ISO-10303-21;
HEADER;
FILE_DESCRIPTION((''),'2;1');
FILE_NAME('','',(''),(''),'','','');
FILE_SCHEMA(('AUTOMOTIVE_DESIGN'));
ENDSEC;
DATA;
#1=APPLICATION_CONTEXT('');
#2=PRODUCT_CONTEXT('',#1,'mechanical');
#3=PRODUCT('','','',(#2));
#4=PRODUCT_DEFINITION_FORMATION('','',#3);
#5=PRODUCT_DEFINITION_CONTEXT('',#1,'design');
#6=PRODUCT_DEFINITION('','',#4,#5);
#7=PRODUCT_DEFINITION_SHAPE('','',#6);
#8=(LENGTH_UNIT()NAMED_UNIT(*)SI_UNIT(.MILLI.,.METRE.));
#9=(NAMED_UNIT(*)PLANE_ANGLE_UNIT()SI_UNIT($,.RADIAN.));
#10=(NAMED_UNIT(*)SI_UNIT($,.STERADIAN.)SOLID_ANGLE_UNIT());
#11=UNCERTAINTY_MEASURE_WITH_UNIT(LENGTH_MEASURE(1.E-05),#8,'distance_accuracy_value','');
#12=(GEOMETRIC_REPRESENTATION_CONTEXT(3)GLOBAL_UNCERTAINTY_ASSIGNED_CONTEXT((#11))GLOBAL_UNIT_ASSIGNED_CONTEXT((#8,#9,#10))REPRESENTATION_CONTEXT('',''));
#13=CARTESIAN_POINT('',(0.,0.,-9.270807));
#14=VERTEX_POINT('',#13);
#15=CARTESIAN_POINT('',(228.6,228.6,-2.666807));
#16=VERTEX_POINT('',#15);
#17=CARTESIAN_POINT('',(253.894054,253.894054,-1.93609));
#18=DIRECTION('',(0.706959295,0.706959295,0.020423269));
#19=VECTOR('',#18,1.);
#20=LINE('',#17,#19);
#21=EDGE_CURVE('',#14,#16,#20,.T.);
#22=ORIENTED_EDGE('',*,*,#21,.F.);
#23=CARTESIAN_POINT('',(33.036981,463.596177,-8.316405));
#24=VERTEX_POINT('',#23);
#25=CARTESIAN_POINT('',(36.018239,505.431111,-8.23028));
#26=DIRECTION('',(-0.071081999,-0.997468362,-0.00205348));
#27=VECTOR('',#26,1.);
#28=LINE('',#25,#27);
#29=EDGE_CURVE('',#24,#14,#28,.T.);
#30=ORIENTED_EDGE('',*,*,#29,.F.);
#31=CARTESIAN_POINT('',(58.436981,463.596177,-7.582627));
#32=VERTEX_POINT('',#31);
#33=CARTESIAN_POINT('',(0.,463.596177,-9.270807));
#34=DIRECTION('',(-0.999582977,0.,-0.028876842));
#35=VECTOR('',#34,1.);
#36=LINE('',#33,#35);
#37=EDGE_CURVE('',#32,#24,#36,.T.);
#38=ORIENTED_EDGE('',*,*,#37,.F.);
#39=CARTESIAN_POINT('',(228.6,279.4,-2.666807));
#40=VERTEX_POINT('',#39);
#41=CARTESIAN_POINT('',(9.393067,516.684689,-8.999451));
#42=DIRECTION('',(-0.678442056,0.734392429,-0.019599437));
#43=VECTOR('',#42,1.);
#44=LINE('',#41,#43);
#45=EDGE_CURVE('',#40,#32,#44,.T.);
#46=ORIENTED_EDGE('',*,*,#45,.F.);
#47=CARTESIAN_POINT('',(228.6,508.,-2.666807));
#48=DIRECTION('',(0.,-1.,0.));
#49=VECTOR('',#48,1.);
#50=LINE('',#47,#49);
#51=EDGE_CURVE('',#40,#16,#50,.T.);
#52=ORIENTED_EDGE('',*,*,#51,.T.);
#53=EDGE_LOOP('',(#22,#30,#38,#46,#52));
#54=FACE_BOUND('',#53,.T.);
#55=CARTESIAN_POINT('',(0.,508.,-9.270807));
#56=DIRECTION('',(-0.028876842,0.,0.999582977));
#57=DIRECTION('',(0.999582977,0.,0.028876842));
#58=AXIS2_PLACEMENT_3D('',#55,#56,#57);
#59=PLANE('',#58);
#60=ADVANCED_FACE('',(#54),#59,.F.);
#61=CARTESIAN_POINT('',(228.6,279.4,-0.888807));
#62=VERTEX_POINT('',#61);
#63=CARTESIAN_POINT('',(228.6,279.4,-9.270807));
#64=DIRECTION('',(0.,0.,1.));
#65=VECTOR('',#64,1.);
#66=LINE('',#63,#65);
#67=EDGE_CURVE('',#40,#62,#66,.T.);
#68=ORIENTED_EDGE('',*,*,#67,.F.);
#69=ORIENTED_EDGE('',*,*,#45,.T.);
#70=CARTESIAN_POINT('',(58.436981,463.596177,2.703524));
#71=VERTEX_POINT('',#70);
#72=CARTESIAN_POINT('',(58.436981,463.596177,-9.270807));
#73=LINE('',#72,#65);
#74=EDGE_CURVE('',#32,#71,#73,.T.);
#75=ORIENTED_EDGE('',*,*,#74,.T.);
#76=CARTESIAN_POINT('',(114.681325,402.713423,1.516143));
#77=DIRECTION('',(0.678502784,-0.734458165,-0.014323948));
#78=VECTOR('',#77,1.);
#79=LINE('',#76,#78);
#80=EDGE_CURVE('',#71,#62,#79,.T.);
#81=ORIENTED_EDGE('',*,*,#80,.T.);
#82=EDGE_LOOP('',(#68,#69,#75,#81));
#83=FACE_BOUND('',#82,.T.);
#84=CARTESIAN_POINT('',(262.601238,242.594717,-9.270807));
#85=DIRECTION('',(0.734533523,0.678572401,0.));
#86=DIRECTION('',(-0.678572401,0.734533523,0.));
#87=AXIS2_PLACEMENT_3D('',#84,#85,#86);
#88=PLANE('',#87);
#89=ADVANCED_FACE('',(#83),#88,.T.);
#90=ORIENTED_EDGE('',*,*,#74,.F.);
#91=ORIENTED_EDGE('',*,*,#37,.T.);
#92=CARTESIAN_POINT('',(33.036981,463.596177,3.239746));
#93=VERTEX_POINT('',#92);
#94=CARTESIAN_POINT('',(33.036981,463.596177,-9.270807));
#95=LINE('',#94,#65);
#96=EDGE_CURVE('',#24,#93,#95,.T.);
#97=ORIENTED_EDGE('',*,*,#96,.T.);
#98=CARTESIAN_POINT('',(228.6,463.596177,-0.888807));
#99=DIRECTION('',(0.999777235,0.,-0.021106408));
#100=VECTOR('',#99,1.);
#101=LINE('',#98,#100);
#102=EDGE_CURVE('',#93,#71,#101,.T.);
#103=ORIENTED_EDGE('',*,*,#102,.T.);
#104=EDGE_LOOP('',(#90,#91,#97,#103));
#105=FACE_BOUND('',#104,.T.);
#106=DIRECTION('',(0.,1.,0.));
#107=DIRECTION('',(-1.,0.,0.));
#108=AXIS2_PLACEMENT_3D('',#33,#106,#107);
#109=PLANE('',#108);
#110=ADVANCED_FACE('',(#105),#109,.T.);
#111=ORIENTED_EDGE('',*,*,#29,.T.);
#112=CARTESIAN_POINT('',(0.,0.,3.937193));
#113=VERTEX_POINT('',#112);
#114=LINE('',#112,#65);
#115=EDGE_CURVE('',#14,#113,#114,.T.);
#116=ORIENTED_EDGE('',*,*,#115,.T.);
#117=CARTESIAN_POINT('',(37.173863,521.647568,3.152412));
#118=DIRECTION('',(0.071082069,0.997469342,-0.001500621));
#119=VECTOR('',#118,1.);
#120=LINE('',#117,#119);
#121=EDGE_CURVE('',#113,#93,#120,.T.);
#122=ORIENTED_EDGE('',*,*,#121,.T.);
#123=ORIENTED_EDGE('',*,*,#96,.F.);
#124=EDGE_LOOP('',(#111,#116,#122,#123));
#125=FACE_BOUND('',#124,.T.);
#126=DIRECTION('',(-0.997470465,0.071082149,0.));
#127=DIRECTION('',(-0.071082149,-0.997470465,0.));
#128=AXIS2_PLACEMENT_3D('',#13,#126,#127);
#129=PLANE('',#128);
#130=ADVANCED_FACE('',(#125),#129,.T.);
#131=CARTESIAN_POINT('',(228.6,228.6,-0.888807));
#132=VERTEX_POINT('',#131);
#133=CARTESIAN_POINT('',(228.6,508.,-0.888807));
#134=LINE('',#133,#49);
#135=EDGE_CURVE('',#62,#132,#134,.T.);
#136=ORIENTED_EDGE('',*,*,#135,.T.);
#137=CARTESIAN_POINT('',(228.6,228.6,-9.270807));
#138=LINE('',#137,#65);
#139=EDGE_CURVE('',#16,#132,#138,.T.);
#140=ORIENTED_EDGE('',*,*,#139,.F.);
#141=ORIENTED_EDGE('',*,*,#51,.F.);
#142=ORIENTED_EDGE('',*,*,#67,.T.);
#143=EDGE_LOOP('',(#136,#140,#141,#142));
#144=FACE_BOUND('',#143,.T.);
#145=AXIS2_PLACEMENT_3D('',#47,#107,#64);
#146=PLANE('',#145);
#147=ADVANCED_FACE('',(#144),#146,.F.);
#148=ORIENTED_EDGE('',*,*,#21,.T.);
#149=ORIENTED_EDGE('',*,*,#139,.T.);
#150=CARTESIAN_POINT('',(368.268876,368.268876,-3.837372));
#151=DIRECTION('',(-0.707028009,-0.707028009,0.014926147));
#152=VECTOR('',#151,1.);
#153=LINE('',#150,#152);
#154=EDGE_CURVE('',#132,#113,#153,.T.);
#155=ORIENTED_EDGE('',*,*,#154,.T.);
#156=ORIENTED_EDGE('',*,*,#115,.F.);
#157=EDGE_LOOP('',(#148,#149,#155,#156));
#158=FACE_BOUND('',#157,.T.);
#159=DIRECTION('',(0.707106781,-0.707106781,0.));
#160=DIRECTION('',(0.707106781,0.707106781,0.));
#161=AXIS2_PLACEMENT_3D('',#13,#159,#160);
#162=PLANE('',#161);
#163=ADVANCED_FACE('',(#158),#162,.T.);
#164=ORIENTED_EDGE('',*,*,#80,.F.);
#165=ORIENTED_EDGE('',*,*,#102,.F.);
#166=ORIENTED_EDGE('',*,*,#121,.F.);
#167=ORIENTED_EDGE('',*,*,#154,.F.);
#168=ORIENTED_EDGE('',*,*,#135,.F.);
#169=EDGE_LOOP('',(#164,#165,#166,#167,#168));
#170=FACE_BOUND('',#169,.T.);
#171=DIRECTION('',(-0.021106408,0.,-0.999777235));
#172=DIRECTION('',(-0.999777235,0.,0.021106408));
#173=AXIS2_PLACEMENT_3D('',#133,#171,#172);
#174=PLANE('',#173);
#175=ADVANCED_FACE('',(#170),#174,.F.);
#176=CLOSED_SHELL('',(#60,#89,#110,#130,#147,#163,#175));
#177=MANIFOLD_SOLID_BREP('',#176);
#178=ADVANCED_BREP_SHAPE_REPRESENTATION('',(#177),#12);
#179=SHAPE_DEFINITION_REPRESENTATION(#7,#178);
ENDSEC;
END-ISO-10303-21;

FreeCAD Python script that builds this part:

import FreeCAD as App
import Part
import Sketcher
from FreeCAD import Vector
Q = App.Units.Quantity


def add_polygon(sketch, points):
    """Adds a closed chain of lines whose ends are joined by coincident constraints."""
    first, n = sketch.GeometryCount, len(points)
    for a, b in zip(points, points[1:] + points[:1]):
        sketch.addGeometry(Part.LineSegment(App.Vector(*a, 0), App.Vector(*b, 0)), False)
    for i in range(n):
        sketch.addConstraint(Sketcher.Constraint("Coincident", first + i, 2, first + (i + 1) % n, 1))

doc = App.newDocument("Part")
params = doc.addObject("Spreadsheet::Sheet", "Params")
for row, (alias, value) in enumerate([
    ("sketch1_height", "0.52 in"),
    ("sketch1_height2", "0.07 in"),
    ("pad1_length", "20 in"),
    ("sketch2_width", "9 in"),
    ("sketch2_width2", "1 in"),
    ("sketch2_height", "20 in"),
], start=1):
    params.set(f"A{row}", alias)
    params.set(f"B{row}", "=" + value)
    params.setAlias(f"B{row}", alias)

body = doc.addObject("PartDesign::Body", "Body")

sketch1 = body.newObject("Sketcher::SketchObject", "Sketch")
sketch1.AttachmentSupport = (doc.getObject("XZ_Plane"), [""])
sketch1.MapMode = "FlatFace"
add_polygon(sketch1, [(0, -9.3), (0, 3.9), (228.6, -0.9), (228.6, -2.7)])
sketch1.addConstraint(Sketcher.Constraint("Vertical", 0))
sketch1.addConstraint(Sketcher.Constraint("Vertical", 2))
sketch1.addConstraint(Sketcher.Constraint("PointOnObject", 0, 2, -2))
sketch1.addConstraint(Sketcher.Constraint("DistanceX", -1, 1, 1, 2, Q("9 in")))
sketch1.addConstraint(Sketcher.Constraint("DistanceY", 0, 1, 0, 2, Q("0.52 in")))
sketch1.addConstraint(Sketcher.Constraint("DistanceY", 2, 2, 2, 1, Q("0.07 in")))
sketch1.addConstraint(Sketcher.Constraint("DistanceY", 1, 2, 0, 2, Q("0.19 in")))
sketch1.addConstraint(Sketcher.Constraint("DistanceY", -1, 1, 0, 2, Q("3.937193 mm")))
sketch1.setExpression("Constraints[8]", "Params.sketch1_height")
sketch1.setExpression("Constraints[9]", "Params.sketch1_height2")
pad1 = body.newObject("PartDesign::Pad", "Pad")
pad1.Profile = sketch1
pad1.setExpression("Length", "Params.pad1_length")
pad1.Reversed = True

sketch2 = body.newObject("Sketcher::SketchObject", "Sketch001")
sketch2.AttachmentSupport = (doc.getObject("XY_Plane"), [""])
sketch2.MapMode = "FlatFace"
add_polygon(sketch2, [(0, 0), (229, 0), (229, 229)])
add_polygon(sketch2, [(229, 279), (229, 508), (0, 508), (0, 0), (33, 464), (58, 464)])
sketch2.addConstraint(Sketcher.Constraint("Horizontal", 0))
sketch2.addConstraint(Sketcher.Constraint("Vertical", 1))
sketch2.addConstraint(Sketcher.Constraint("Vertical", 3))
sketch2.addConstraint(Sketcher.Constraint("Horizontal", 4))
sketch2.addConstraint(Sketcher.Constraint("Vertical", 5))
sketch2.addConstraint(Sketcher.Constraint("Horizontal", 7))
sketch2.addConstraint(Sketcher.Constraint("Coincident", 2, 2, -1, 1))
sketch2.addConstraint(Sketcher.Constraint("Coincident", 5, 2, -1, 1))
sketch2.addConstraint(Sketcher.Constraint("Vertical", 1, 2, 3, 2))
sketch2.addConstraint(Sketcher.Constraint("Equal", 4, 1))
sketch2.addConstraint(Sketcher.Constraint("Equal", 1, 3))
sketch2.addConstraint(Sketcher.Constraint("DistanceX", 0, 1, 0, 2, Q("9 in")))
sketch2.addConstraint(Sketcher.Constraint("DistanceX", 7, 1, 7, 2, Q("1 in")))
sketch2.addConstraint(Sketcher.Constraint("DistanceY", 5, 2, 5, 1, Q("20 in")))
sketch2.addConstraint(Sketcher.Constraint("DistanceX", -1, 1, 6, 2, Q("33.036981 mm")))
sketch2.addConstraint(Sketcher.Constraint("Distance", 6, Q("464.771834 mm")))
sketch2.setExpression("Constraints[20]", "Params.sketch2_width")
sketch2.setExpression("Constraints[21]", "Params.sketch2_width2")
sketch2.setExpression("Constraints[22]", "Params.sketch2_height")
pocket1 = body.newObject("PartDesign::Pocket", "Pocket")
pocket1.Profile = sketch2
pocket1.Type = "ThroughAll"
pocket1.Midplane = True

doc.recompute()
